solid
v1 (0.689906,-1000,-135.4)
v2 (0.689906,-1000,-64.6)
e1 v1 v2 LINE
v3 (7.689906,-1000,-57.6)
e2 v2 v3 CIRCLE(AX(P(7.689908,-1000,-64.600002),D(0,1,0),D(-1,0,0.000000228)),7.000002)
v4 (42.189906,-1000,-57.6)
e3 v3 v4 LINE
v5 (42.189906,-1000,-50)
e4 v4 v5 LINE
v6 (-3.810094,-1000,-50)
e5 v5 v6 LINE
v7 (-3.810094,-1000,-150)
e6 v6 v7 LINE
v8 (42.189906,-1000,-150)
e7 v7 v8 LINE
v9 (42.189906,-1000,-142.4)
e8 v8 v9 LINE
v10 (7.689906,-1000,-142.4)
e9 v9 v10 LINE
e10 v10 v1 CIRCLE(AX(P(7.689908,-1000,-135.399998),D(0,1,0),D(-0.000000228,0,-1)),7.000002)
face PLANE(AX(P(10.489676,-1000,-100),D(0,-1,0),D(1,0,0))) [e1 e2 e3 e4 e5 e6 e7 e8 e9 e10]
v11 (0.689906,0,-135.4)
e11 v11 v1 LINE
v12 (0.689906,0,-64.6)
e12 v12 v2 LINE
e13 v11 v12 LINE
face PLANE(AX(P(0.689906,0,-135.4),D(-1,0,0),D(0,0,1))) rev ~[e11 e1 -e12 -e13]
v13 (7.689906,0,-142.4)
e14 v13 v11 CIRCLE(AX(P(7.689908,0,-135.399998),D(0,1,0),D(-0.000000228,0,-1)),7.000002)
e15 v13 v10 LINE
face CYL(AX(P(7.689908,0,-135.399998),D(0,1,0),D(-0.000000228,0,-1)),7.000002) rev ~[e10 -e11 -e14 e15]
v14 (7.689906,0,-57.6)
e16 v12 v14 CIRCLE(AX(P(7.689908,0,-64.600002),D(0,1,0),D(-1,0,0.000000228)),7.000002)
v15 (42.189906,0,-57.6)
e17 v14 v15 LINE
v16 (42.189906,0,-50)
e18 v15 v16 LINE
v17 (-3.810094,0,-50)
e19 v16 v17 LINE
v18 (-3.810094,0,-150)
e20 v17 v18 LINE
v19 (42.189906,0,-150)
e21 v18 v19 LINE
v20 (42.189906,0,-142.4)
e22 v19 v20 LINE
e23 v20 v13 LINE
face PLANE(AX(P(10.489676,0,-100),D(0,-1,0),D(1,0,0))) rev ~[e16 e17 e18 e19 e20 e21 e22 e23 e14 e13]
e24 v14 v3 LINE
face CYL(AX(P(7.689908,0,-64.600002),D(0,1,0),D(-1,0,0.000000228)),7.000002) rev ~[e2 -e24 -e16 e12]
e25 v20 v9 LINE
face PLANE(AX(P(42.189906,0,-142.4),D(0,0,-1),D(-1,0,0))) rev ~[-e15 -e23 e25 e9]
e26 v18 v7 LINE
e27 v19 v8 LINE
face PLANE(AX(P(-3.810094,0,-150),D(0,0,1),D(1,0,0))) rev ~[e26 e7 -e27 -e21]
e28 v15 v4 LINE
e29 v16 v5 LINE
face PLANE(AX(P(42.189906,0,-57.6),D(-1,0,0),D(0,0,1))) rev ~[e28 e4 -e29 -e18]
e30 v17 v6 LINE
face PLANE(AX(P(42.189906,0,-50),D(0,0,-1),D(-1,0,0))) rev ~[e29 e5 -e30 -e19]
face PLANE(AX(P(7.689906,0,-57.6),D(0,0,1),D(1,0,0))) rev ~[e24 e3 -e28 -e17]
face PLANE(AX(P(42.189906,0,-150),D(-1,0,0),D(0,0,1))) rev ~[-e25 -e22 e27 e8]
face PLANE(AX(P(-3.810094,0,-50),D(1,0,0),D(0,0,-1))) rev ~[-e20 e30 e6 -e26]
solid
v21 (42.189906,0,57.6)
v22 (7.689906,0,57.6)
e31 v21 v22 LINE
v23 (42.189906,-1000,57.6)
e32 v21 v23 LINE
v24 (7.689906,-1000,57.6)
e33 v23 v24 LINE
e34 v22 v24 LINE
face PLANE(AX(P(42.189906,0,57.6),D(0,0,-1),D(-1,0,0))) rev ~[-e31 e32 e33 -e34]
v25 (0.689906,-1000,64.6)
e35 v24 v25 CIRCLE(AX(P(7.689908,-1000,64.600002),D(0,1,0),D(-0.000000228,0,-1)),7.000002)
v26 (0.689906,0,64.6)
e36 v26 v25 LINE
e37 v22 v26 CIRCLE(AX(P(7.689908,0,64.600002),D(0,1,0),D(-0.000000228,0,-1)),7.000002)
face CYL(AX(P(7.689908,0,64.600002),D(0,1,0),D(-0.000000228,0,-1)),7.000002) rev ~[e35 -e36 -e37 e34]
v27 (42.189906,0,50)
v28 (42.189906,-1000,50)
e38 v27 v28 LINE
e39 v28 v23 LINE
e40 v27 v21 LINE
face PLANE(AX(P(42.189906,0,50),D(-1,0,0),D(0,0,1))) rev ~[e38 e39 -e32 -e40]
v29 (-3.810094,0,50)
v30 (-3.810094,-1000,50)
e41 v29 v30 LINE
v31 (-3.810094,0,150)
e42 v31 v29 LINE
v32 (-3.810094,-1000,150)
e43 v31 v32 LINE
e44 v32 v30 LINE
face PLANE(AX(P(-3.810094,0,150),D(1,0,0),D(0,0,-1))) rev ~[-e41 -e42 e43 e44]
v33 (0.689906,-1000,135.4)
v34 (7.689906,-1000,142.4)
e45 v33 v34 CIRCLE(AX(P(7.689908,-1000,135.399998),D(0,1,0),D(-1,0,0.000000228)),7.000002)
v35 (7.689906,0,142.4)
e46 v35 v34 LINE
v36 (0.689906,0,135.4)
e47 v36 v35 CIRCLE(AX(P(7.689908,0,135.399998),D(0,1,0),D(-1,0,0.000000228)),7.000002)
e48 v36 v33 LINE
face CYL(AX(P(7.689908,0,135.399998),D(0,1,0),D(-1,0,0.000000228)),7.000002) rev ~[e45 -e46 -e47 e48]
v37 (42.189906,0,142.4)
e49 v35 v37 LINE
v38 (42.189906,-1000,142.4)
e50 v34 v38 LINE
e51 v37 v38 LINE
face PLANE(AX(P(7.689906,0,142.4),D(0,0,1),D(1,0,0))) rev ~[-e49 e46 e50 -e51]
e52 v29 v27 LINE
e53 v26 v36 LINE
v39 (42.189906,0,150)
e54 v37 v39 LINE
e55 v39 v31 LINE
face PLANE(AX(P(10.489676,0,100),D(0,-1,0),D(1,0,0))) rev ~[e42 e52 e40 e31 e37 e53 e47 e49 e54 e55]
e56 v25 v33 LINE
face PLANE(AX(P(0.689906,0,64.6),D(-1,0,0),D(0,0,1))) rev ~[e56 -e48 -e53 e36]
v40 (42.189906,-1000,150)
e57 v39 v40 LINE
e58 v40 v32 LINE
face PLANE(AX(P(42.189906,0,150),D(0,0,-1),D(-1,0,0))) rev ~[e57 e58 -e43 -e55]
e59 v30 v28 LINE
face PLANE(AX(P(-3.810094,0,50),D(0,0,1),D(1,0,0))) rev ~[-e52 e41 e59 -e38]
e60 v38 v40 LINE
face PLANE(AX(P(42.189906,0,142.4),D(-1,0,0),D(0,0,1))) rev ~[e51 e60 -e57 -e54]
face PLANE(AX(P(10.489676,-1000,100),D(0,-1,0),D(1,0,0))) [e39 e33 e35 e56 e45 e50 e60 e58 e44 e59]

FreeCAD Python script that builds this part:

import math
import FreeCAD as App
import Part
import Sketcher

V = App.Vector

doc = App.newDocument("Part")
body = doc.addObject("PartDesign::Body", "Body")
body.AllowCompound = True

sketch1 = body.newObject("Sketcher::SketchObject", "Sketch")
sketch1.AttachmentSupport = (doc.getObject("XZ_Plane"), [""])
sketch1.MapMode = "FlatFace"
sketch1.addGeometry([
    Part.LineSegment(V(42, -50, 0), V(-4, -50, 0)),
    Part.LineSegment(V(-4, -50, 0), V(-4, -150, 0)),
    Part.LineSegment(V(-4, -150, 0), V(42, -150, 0)),
    Part.LineSegment(V(42, -150, 0), V(42, -142, 0)),
    Part.LineSegment(V(42, -142, 0), V(8, -142, 0)),
    Part.ArcOfCircle(Part.Circle(V(8, -135, 0), V(0, 0, 1), 7), math.radians(-180), math.radians(-90)),
    Part.LineSegment(V(1, -135, 0), V(1, -65, 0)),
    Part.ArcOfCircle(Part.Circle(V(8, -65, 0), V(0, 0, 1), 7), math.radians(90), math.radians(180)),
    Part.LineSegment(V(8, -58, 0), V(42, -58, 0)),
    Part.LineSegment(V(42, -58, 0), V(42, -50, 0)),
    Part.LineSegment(V(1, 65, 0), V(1, 135, 0)),
    Part.ArcOfCircle(Part.Circle(V(8, 135, 0), V(0, 0, 1), 7), math.radians(90), math.radians(180)),
    Part.LineSegment(V(8, 142, 0), V(42, 142, 0)),
    Part.LineSegment(V(42, 142, 0), V(42, 150, 0)),
    Part.LineSegment(V(42, 150, 0), V(-4, 150, 0)),
    Part.LineSegment(V(-4, 150, 0), V(-4, 50, 0)),
    Part.LineSegment(V(-4, 50, 0), V(42, 50, 0)),
    Part.LineSegment(V(42, 50, 0), V(42, 58, 0)),
    Part.LineSegment(V(42, 58, 0), V(8, 58, 0)),
    Part.ArcOfCircle(Part.Circle(V(8, 65, 0), V(0, 0, 1), 7), math.radians(-180), math.radians(-90)),
], False)
sketch1.addConstraint([
    Sketcher.Constraint("Coincident", 0, 2, 1, 1),
    Sketcher.Constraint("Coincident", 1, 2, 2, 1),
    Sketcher.Constraint("Coincident", 2, 2, 3, 1),
    Sketcher.Constraint("Coincident", 3, 2, 4, 1),
    Sketcher.Constraint("Tangent", 4, 2, 5, 2),
    Sketcher.Constraint("Tangent", 5, 1, 6, 1),
    Sketcher.Constraint("Tangent", 6, 2, 7, 2),
    Sketcher.Constraint("Tangent", 7, 1, 8, 1),
    Sketcher.Constraint("Coincident", 8, 2, 9, 1),
    Sketcher.Constraint("Coincident", 9, 2, 0, 1),
    Sketcher.Constraint("Tangent", 10, 2, 11, 2),
    Sketcher.Constraint("Tangent", 11, 1, 12, 1),
    Sketcher.Constraint("Coincident", 12, 2, 13, 1),
    Sketcher.Constraint("Coincident", 13, 2, 14, 1),
    Sketcher.Constraint("Coincident", 14, 2, 15, 1),
    Sketcher.Constraint("Coincident", 15, 2, 16, 1),
    Sketcher.Constraint("Coincident", 16, 2, 17, 1),
    Sketcher.Constraint("Coincident", 17, 2, 18, 1),
    Sketcher.Constraint("Tangent", 18, 2, 19, 2),
    Sketcher.Constraint("Tangent", 19, 1, 10, 1),
    Sketcher.Constraint("Horizontal", 0),
    Sketcher.Constraint("Vertical", 1),
    Sketcher.Constraint("Horizontal", 2),
    Sketcher.Constraint("Vertical", 3),
    Sketcher.Constraint("Horizontal", 4),
    Sketcher.Constraint("Vertical", 6),
    Sketcher.Constraint("Horizontal", 8),
    Sketcher.Constraint("Vertical", 9),
    Sketcher.Constraint("Vertical", 10),
    Sketcher.Constraint("Horizontal", 12),
    Sketcher.Constraint("Vertical", 13),
    Sketcher.Constraint("Horizontal", 14),
    Sketcher.Constraint("Vertical", 15),
    Sketcher.Constraint("Horizontal", 16),
    Sketcher.Constraint("Vertical", 17),
    Sketcher.Constraint("Horizontal", 18),
    Sketcher.Constraint("Equal", 5, 7),
    Sketcher.Constraint("Equal", 7, 11),
    Sketcher.Constraint("Equal", 11, 19),
    Sketcher.Constraint("Symmetric", 5, 3, 11, 3, -1),
    Sketcher.Constraint("Symmetric", 2, 2, 13, 2, -1),
    Sketcher.Constraint("Symmetric", 0, 2, 15, 2, -1),
    Sketcher.Constraint("Symmetric", 8, 2, 17, 2, -1),
    Sketcher.Constraint("Vertical", 3, 2, 8, 2),
    Sketcher.Constraint("Equal", 3, 9),
    Sketcher.Constraint("Radius", 5, 7.000002),
    Sketcher.Constraint("DistanceX", 0, 2, 0, 1, 46.0),
    Sketcher.Constraint("DistanceY", 1, 2, 1, 1, 100.0),
    Sketcher.Constraint("DistanceX", 4, 2, 4, 1, 34.5),
    Sketcher.Constraint("DistanceY", 3, 1, 3, 2, 7.6),
    Sketcher.Constraint("DistanceY", 0, 2, -1, 1, 50.0),
    Sketcher.Constraint("DistanceX", -1, 1, 5, 3, 7.689908),
])
pad1 = body.newObject("PartDesign::Pad", "Pad")
pad1.Profile = sketch1
pad1.Length = 1000

doc.recompute()
